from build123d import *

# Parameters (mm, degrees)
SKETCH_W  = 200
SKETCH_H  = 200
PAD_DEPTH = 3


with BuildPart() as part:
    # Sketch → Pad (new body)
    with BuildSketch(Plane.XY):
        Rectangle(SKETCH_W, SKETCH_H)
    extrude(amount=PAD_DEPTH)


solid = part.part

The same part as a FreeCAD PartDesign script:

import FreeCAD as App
import Part
import Sketcher

V = App.Vector
Q = App.Units.Quantity

doc = App.newDocument("Part")
body = doc.addObject("PartDesign::Body", "Body")

sketch1 = body.newObject("Sketcher::SketchObject", "Sketch")
sketch1.AttachmentSupport = (doc.getObject("XY_Plane"), [""])
sketch1.MapMode = "FlatFace"
sketch1.addGeometry([
    Part.LineSegment(V(-100, 100, 0), V(-100, -100, 0)),
    Part.LineSegment(V(-100, -100, 0), V(100, -100, 0)),
    Part.LineSegment(V(100, -100, 0), V(100, 100, 0)),
    Part.LineSegment(V(100, 100, 0), V(-100, 100, 0)),
], False)
sketch1.addConstraint([
    Sketcher.Constraint("Coincident", 0, 2, 1, 1),
    Sketcher.Constraint("Coincident", 1, 2, 2, 1),
    Sketcher.Constraint("Coincident", 2, 2, 3, 1),
    Sketcher.Constraint("Coincident", 3, 2, 0, 1),
    Sketcher.Constraint("Vertical", 0),
    Sketcher.Constraint("Horizontal", 1),
    Sketcher.Constraint("Vertical", 2),
    Sketcher.Constraint("Horizontal", 3),
    Sketcher.Constraint("Symmetric", 0, 2, 2, 2, -1, 1),
    Sketcher.Constraint("Equal", 3, 0),
    Sketcher.Constraint("DistanceX", 1, 1, 1, 2, Q("200 mm")),
])
pad1 = body.newObject("PartDesign::Pad", "Pad")
pad1.Profile = sketch1
pad1.Length = 3

doc.recompute()
